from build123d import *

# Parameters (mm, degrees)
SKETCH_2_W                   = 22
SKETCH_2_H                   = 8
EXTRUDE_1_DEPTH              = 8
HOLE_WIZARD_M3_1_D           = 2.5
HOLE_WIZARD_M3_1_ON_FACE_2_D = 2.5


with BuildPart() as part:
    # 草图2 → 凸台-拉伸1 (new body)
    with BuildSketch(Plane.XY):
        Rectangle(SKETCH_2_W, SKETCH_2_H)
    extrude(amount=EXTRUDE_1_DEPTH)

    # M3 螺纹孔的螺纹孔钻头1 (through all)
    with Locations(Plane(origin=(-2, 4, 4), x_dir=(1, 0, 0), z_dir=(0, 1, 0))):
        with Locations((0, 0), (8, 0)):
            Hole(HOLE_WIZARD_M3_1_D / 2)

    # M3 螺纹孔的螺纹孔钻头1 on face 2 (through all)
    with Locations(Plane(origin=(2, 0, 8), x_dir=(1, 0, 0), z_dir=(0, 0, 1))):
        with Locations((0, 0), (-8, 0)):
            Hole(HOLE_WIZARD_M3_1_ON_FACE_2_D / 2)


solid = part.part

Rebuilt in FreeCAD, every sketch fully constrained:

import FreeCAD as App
import Part
import Sketcher
Q = App.Units.Quantity


def add_polygon(sketch, points):
    """Adds a closed chain of lines whose ends are joined by coincident constraints."""
    first, n = sketch.GeometryCount, len(points)
    for a, b in zip(points, points[1:] + points[:1]):
        sketch.addGeometry(Part.LineSegment(App.Vector(*a, 0), App.Vector(*b, 0)), False)
    for i in range(n):
        sketch.addConstraint(Sketcher.Constraint("Coincident", first + i, 2, first + (i + 1) % n, 1))

doc = App.newDocument("Part")
params = doc.addObject("Spreadsheet::Sheet", "Params")
for row, (alias, value) in enumerate([
    ("sketch1_width", "22 mm"),
    ("sketch1_height", "8 mm"),
    ("pad1_length", "8 mm"),
    ("sketch2_diameter", "2.5 mm"),
    ("hole_diameter", "2.5 mm"),
    ("sketch3_diameter", "2.5 mm"),
    ("hole2_diameter", "2.5 mm"),
], start=1):
    params.set(f"A{row}", alias)
    params.set(f"B{row}", "=" + value)
    params.setAlias(f"B{row}", alias)

body = doc.addObject("PartDesign::Body", "Body")

# Sketch on XY plane
sketch1 = body.newObject("Sketcher::SketchObject", "Sketch")
sketch1.AttachmentSupport = (doc.getObject("XY_Plane"), [""])
sketch1.MapMode = "FlatFace"
add_polygon(sketch1, [(-11, 4), (-11, -4), (11, -4), (11, 4)])  # lines 0-3
sketch1.addConstraint([
    Sketcher.Constraint("Vertical", 0),
    Sketcher.Constraint("Horizontal", 1),
    Sketcher.Constraint("Vertical", 2),
    Sketcher.Constraint("Horizontal", 3),
    Sketcher.Constraint("Symmetric", 0, 2, 2, 2, -1, 1),
    Sketcher.Constraint("DistanceX", 1, 1, 1, 2, Q("22 mm")),
    Sketcher.Constraint("DistanceY", 0, 2, 0, 1, Q("8 mm")),
])
sketch1.setExpression("Constraints[9]", "Params.sketch1_width")
sketch1.setExpression("Constraints[10]", "Params.sketch1_height")
pad1 = body.newObject("PartDesign::Pad", "Pad")
pad1.Profile = sketch1
pad1.setExpression("Length", "Params.pad1_length")

# Sketch on XZ plane
sketch2 = body.newObject("Sketcher::SketchObject", "Sketch001")
sketch2.AttachmentSupport = (doc.getObject("XZ_Plane"), [""])
sketch2.MapMode = "FlatFace"
sketch2.AttachmentOffset = App.Placement(App.Vector(0, 0, -4), App.Rotation())
sketch2.addGeometry([
    Part.Circle(App.Vector(-2, 4, 0), App.Vector(0, 0, 1), 1.25),
    Part.Circle(App.Vector(6, 4, 0), App.Vector(0, 0, 1), 1.25),
], False)
sketch2.addConstraint([
    Sketcher.Constraint("Equal", 0, 1),
    Sketcher.Constraint("Horizontal", 0, 3, 1, 3),
    Sketcher.Constraint("Diameter", 0, Q("2.5 mm")),
    Sketcher.Constraint("DistanceX", 0, 3, -1, 1, Q("2 mm")),
    Sketcher.Constraint("DistanceY", -1, 1, 0, 3, Q("4 mm")),
    Sketcher.Constraint("DistanceX", -1, 1, 1, 3, Q("6 mm")),
])
sketch2.setExpression("Constraints[2]", "Params.sketch2_diameter")
doc.recompute()
hole = body.newObject("PartDesign::Hole", "Hole")
hole.Profile = sketch2
hole.ThreadType = "None"
hole.setExpression("Diameter", "Params.hole_diameter")
hole.DepthType = "ThroughAll"
hole.Reversed = True

# Sketch on XY plane
sketch3 = body.newObject("Sketcher::SketchObject", "Sketch002")
sketch3.AttachmentSupport = (doc.getObject("XY_Plane"), [""])
sketch3.MapMode = "FlatFace"
sketch3.AttachmentOffset = App.Placement(App.Vector(0, 0, 8), App.Rotation())
sketch3.addGeometry([
    Part.Circle(App.Vector(2, 0, 0), App.Vector(0, 0, 1), 1.25),
    Part.Circle(App.Vector(-6, 0, 0), App.Vector(0, 0, 1), 1.25),
], False)
sketch3.addConstraint([
    Sketcher.Constraint("Equal", 0, 1),
    Sketcher.Constraint("PointOnObject", 0, 3, -1),
    Sketcher.Constraint("PointOnObject", 1, 3, -1),
    Sketcher.Constraint("Diameter", 0, Q("2.5 mm")),
    Sketcher.Constraint("DistanceX", -1, 1, 0, 3, Q("2 mm")),
    Sketcher.Constraint("DistanceX", 1, 3, -1, 1, Q("6 mm")),
])
sketch3.setExpression("Constraints[3]", "Params.sketch3_diameter")
doc.recompute()
hole2 = body.newObject("PartDesign::Hole", "Hole001")
hole2.Profile = sketch3
hole2.ThreadType = "None"
hole2.setExpression("Diameter", "Params.hole2_diameter")
hole2.DepthType = "ThroughAll"

doc.recompute()
